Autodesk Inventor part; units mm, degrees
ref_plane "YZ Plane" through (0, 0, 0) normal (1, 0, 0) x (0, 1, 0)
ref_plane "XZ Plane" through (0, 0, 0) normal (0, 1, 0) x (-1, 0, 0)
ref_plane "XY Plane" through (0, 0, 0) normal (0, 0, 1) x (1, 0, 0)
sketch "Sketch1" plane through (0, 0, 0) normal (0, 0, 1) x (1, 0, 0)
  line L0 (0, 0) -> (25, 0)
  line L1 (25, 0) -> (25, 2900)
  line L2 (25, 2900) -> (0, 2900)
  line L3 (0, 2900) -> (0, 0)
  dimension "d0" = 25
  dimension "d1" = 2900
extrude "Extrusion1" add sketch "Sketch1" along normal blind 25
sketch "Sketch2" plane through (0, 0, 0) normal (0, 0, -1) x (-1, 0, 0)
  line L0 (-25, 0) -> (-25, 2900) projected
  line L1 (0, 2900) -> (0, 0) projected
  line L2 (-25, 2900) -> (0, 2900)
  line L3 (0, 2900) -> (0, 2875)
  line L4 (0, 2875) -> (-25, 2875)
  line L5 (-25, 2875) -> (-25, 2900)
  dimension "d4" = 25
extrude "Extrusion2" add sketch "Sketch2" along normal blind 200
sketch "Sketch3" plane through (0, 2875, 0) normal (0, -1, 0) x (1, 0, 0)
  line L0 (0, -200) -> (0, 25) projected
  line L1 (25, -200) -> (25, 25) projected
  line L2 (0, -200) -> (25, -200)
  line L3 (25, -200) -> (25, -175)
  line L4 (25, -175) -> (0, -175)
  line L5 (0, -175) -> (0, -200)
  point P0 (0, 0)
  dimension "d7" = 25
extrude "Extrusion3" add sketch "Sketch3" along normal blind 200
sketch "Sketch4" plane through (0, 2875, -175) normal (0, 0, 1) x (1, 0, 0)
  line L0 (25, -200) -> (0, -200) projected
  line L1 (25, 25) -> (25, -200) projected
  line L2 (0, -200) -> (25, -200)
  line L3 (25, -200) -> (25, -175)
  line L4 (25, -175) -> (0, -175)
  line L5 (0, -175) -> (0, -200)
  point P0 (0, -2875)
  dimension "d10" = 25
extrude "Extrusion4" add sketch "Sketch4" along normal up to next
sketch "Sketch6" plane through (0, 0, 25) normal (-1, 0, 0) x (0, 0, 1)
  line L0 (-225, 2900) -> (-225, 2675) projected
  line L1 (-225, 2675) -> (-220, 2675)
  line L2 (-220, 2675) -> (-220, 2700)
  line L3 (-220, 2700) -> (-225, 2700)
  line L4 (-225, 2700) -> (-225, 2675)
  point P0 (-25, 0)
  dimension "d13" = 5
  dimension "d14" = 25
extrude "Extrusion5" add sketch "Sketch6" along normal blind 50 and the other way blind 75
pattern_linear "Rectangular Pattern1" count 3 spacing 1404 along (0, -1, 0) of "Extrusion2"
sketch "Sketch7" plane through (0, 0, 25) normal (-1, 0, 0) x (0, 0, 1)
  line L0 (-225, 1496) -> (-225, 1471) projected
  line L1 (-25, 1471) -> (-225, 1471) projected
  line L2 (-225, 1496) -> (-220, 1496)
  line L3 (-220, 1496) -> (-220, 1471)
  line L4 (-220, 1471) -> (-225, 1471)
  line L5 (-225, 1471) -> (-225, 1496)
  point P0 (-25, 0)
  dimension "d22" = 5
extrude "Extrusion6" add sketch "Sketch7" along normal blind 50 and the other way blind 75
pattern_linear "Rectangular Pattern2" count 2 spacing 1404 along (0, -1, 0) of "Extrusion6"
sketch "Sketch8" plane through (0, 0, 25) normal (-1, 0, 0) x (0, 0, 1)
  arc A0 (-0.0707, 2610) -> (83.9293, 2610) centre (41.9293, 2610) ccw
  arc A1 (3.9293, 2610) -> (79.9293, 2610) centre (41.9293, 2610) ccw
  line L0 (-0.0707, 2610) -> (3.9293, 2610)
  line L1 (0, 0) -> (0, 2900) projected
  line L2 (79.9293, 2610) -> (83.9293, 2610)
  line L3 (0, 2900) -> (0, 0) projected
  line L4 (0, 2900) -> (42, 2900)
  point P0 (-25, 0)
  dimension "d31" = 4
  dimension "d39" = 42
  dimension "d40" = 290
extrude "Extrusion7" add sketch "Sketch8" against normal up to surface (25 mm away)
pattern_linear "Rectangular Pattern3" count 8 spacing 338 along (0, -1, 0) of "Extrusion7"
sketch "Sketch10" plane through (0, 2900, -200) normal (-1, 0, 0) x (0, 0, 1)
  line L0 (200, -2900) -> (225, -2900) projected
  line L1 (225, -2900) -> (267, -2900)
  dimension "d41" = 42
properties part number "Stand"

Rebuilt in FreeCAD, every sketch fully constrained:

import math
import FreeCAD as App
import Part
import Sketcher


def add_polygon(sketch, points):
    """Adds a closed chain of lines whose ends are joined by coincident constraints."""
    first, n = sketch.GeometryCount, len(points)
    for a, b in zip(points, points[1:] + points[:1]):
        sketch.addGeometry(Part.LineSegment(App.Vector(*a, 0), App.Vector(*b, 0)), False)
    for i in range(n):
        sketch.addConstraint(Sketcher.Constraint("Coincident", first + i, 2, first + (i + 1) % n, 1))

doc = App.newDocument("Part")
body = doc.addObject("PartDesign::Body", "Body")

sketch1 = body.newObject("Sketcher::SketchObject", "Sketch")
sketch1.AttachmentSupport = (doc.getObject("XY_Plane"), [""])
sketch1.MapMode = "FlatFace"
add_polygon(sketch1, [(0, 2900), (0, 0), (25, 0), (25, 2900)])
sketch1.addConstraint(Sketcher.Constraint("Vertical", 0))
sketch1.addConstraint(Sketcher.Constraint("Horizontal", 1))
sketch1.addConstraint(Sketcher.Constraint("Vertical", 2))
sketch1.addConstraint(Sketcher.Constraint("Horizontal", 3))
sketch1.addConstraint(Sketcher.Constraint("Coincident", 0, 2, -1, 1))
sketch1.addConstraint(Sketcher.Constraint("DistanceX", 1, 1, 1, 2, 25.0))
sketch1.addConstraint(Sketcher.Constraint("DistanceY", 0, 2, 0, 1, 2900.0))
pad1 = body.newObject("PartDesign::Pad", "Pad")
pad1.Profile = sketch1
pad1.Length = 25

sketch2 = body.newObject("Sketcher::SketchObject", "Sketch001")
sketch2.AttachmentSupport = (doc.getObject("XY_Plane"), [""])
sketch2.MapMode = "FlatFace"
add_polygon(sketch2, [(25, 2900), (25, 2875), (0, 2875), (0, 2900)])
sketch2.addConstraint(Sketcher.Constraint("Vertical", 0))
sketch2.addConstraint(Sketcher.Constraint("Horizontal", 1))
sketch2.addConstraint(Sketcher.Constraint("Vertical", 2))
sketch2.addConstraint(Sketcher.Constraint("Horizontal", 3))
sketch2.addConstraint(Sketcher.Constraint("PointOnObject", 1, 2, -2))
sketch2.addConstraint(Sketcher.Constraint("Equal", 3, 0))
sketch2.addConstraint(Sketcher.Constraint("DistanceX", 1, 2, 1, 1, 25.0))
sketch2.addConstraint(Sketcher.Constraint("DistanceY", -1, 1, 0, 2, 2875.0))
pad2 = body.newObject("PartDesign::Pad", "Pad001")
pad2.Profile = sketch2
pad2.Length = 200
pad2.Reversed = True

sketch3 = body.newObject("Sketcher::SketchObject", "Sketch002")
sketch3.AttachmentSupport = (doc.getObject("XZ_Plane"), [""])
sketch3.MapMode = "FlatFace"
sketch3.AttachmentOffset = App.Placement(App.Vector(0, 0, -2875), App.Rotation())
add_polygon(sketch3, [(0, -175), (0, -200), (25, -200), (25, -175)])
sketch3.addConstraint(Sketcher.Constraint("Vertical", 0))
sketch3.addConstraint(Sketcher.Constraint("Horizontal", 1))
sketch3.addConstraint(Sketcher.Constraint("Vertical", 2))
sketch3.addConstraint(Sketcher.Constraint("Horizontal", 3))
sketch3.addConstraint(Sketcher.Constraint("PointOnObject", 0, 2, -2))
sketch3.addConstraint(Sketcher.Constraint("Equal", 3, 0))
sketch3.addConstraint(Sketcher.Constraint("DistanceX", 1, 1, 1, 2, 25.0))
sketch3.addConstraint(Sketcher.Constraint("DistanceY", 0, 2, -1, 1, 200.0))
pad3 = body.newObject("PartDesign::Pad", "Pad002")
pad3.Profile = sketch3
pad3.Length = 200

sketch4 = body.newObject("Sketcher::SketchObject", "Sketch003")
sketch4.AttachmentSupport = (doc.getObject("XY_Plane"), [""])
sketch4.MapMode = "FlatFace"
sketch4.AttachmentOffset = App.Placement(App.Vector(0, 0, -175), App.Rotation())
add_polygon(sketch4, [(0, 2675), (25, 2675), (25, 2700), (0, 2700)])
sketch4.addConstraint(Sketcher.Constraint("Horizontal", 0))
sketch4.addConstraint(Sketcher.Constraint("Vertical", 1))
sketch4.addConstraint(Sketcher.Constraint("Horizontal", 2))
sketch4.addConstraint(Sketcher.Constraint("Vertical", 3))
sketch4.addConstraint(Sketcher.Constraint("PointOnObject", 2, 2, -2))
sketch4.addConstraint(Sketcher.Constraint("Equal", 2, 1))
sketch4.addConstraint(Sketcher.Constraint("DistanceX", 0, 1, 0, 2, 25.0))
sketch4.addConstraint(Sketcher.Constraint("DistanceY", -1, 1, 0, 2, 2675.0))
pad4 = body.newObject("PartDesign::Pad", "Pad003")
pad4.Profile = sketch4
pad4.Type = "UpToFirst"

sketch5 = body.newObject("Sketcher::SketchObject", "Sketch004")
sketch5.AttachmentSupport = (doc.getObject("YZ_Plane"), [""])
sketch5.MapMode = "FlatFace"
add_polygon(sketch5, [(2700, -195), (2700, -200), (2675, -200), (2675, -195)])
sketch5.addConstraint(Sketcher.Constraint("Vertical", 0))
sketch5.addConstraint(Sketcher.Constraint("Horizontal", 1))
sketch5.addConstraint(Sketcher.Constraint("Vertical", 2))
sketch5.addConstraint(Sketcher.Constraint("Horizontal", 3))
sketch5.addConstraint(Sketcher.Constraint("DistanceX", 1, 2, 1, 1, 25.0))
sketch5.addConstraint(Sketcher.Constraint("DistanceY", 0, 2, 0, 1, 5.0))
sketch5.addConstraint(Sketcher.Constraint("DistanceX", -1, 1, 0, 2, 2700.0))
sketch5.addConstraint(Sketcher.Constraint("DistanceY", 0, 2, -1, 1, 200.0))
pad5 = body.newObject("PartDesign::Pad", "Pad004")
pad5.Profile = sketch5
pad5.Type = "TwoLengths"
pad5.Length = 50
pad5.Length2 = 75
pad5.Reversed = True
doc.recompute()

linearpattern = body.newObject("PartDesign::LinearPattern", "LinearPattern")
linearpattern.Originals = [pad2]
linearpattern.Direction = (doc.getObject("Y_Axis"), [""])
linearpattern.Mode = "offset"
linearpattern.Offset = 1404
linearpattern.Occurrences = 3
linearpattern.Reversed = True
body.Tip = linearpattern

sketch6 = body.newObject("Sketcher::SketchObject", "Sketch005")
sketch6.AttachmentSupport = (doc.getObject("YZ_Plane"), [""])
sketch6.MapMode = "FlatFace"
add_polygon(sketch6, [(1496, -195), (1496, -200), (1471, -200), (1471, -195)])
sketch6.addConstraint(Sketcher.Constraint("Vertical", 0))
sketch6.addConstraint(Sketcher.Constraint("Horizontal", 1))
sketch6.addConstraint(Sketcher.Constraint("Vertical", 2))
sketch6.addConstraint(Sketcher.Constraint("Horizontal", 3))
sketch6.addConstraint(Sketcher.Constraint("DistanceY", 0, 2, 0, 1, 5.0))
sketch6.addConstraint(Sketcher.Constraint("DistanceX", 1, 2, 1, 1, 25.0))
sketch6.addConstraint(Sketcher.Constraint("DistanceX", -1, 1, 0, 2, 1496.0))
sketch6.addConstraint(Sketcher.Constraint("DistanceY", 0, 2, -1, 1, 200.0))
pad6 = body.newObject("PartDesign::Pad", "Pad005")
pad6.Profile = sketch6
pad6.Type = "TwoLengths"
pad6.Length = 50
pad6.Length2 = 75
pad6.Reversed = True
doc.recompute()

linearpattern2 = body.newObject("PartDesign::LinearPattern", "LinearPattern001")
linearpattern2.Originals = [pad6]
linearpattern2.Direction = (doc.getObject("Y_Axis"), [""])
linearpattern2.Mode = "offset"
linearpattern2.Offset = 1404
linearpattern2.Occurrences = 2
linearpattern2.Reversed = True
body.Tip = linearpattern2

sketch7 = body.newObject("Sketcher::SketchObject", "Sketch006")
sketch7.AttachmentSupport = (doc.getObject("YZ_Plane"), [""])
sketch7.MapMode = "FlatFace"
sketch7.addGeometry(Part.ArcOfCircle(Part.Circle(App.Vector(2610, 66.9, 0), App.Vector(0, 0, 1), 42), math.radians(90), math.radians(270)), False)
sketch7.addGeometry(Part.LineSegment(App.Vector(2610, 108.9, 0), App.Vector(2610, 104.9, 0)), False)
sketch7.addGeometry(Part.ArcOfCircle(Part.Circle(App.Vector(2610, 66.9, 0), App.Vector(0, 0, 1), 38), math.radians(90), math.radians(270)), False)
sketch7.addGeometry(Part.LineSegment(App.Vector(2610, 28.9, 0), App.Vector(2610, 24.9, 0)), False)
sketch7.addConstraint(Sketcher.Constraint("Coincident", 0, 1, 1, 1))
sketch7.addConstraint(Sketcher.Constraint("Coincident", 1, 2, 2, 1))
sketch7.addConstraint(Sketcher.Constraint("Coincident", 2, 2, 3, 1))
sketch7.addConstraint(Sketcher.Constraint("Coincident", 3, 2, 0, 2))
sketch7.addConstraint(Sketcher.Constraint("Vertical", 1))
sketch7.addConstraint(Sketcher.Constraint("Vertical", 3))
sketch7.addConstraint(Sketcher.Constraint("Coincident", 2, 3, 0, 3))
sketch7.addConstraint(Sketcher.Constraint("Vertical", 2, 3, 0, 1))
sketch7.addConstraint(Sketcher.Constraint("Vertical", 1, 2, 2, 2))
sketch7.addConstraint(Sketcher.Constraint("Radius", 0, 42.0))
sketch7.addConstraint(Sketcher.Constraint("DistanceY", 1, 2, 1, 1, 4.0))
sketch7.addConstraint(Sketcher.Constraint("DistanceX", -1, 1, 0, 3, 2610.0))
sketch7.addConstraint(Sketcher.Constraint("DistanceY", -1, 1, 0, 3, 66.9293))
pad7 = body.newObject("PartDesign::Pad", "Pad006")
pad7.Profile = sketch7
pad7.Length = 25
doc.recompute()

linearpattern3 = body.newObject("PartDesign::LinearPattern", "LinearPattern002")
linearpattern3.Originals = [pad7]
linearpattern3.Direction = (doc.getObject("Y_Axis"), [""])
linearpattern3.Mode = "offset"
linearpattern3.Offset = 338
linearpattern3.Occurrences = 8
linearpattern3.Reversed = True
body.Tip = linearpattern3

doc.recompute()
